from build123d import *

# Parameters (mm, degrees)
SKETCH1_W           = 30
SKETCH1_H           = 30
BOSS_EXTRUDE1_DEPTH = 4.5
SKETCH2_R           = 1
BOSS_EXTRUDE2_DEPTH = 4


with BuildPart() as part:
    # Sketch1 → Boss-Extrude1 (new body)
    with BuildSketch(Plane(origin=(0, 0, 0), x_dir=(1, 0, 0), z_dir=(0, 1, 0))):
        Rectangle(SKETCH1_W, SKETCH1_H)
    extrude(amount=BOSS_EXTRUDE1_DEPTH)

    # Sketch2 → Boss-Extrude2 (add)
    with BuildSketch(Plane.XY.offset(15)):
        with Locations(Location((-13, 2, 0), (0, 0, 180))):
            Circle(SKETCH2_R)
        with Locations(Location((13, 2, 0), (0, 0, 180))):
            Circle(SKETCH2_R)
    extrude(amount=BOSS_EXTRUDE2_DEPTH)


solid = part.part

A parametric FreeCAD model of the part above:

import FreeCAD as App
import Part
import Sketcher

V = App.Vector
Q = App.Units.Quantity

doc = App.newDocument("Part")
body = doc.addObject("PartDesign::Body", "Body")

# Sketch on XZ plane
sketch1 = body.newObject("Sketcher::SketchObject", "Sketch")
sketch1.AttachmentSupport = (doc.getObject("XZ_Plane"), [""])
sketch1.MapMode = "FlatFace"
sketch1.addGeometry(Part.LineSegment(V(-15, -15, 0), V(-15, 15, 0)), False)
sketch1.addGeometry(Part.LineSegment(V(-15, 15, 0), V(15, 15, 0)), False)
sketch1.addGeometry(Part.LineSegment(V(15, 15, 0), V(15, -15, 0)), False)
sketch1.addGeometry(Part.LineSegment(V(15, -15, 0), V(-15, -15, 0)), False)
sketch1.addConstraint(Sketcher.Constraint("Coincident", 0, 2, 1, 1))
sketch1.addConstraint(Sketcher.Constraint("Coincident", 1, 2, 2, 1))
sketch1.addConstraint(Sketcher.Constraint("Coincident", 2, 2, 3, 1))
sketch1.addConstraint(Sketcher.Constraint("Coincident", 3, 2, 0, 1))
sketch1.addConstraint(Sketcher.Constraint("Vertical", 0))
sketch1.addConstraint(Sketcher.Constraint("Horizontal", 1))
sketch1.addConstraint(Sketcher.Constraint("Vertical", 2))
sketch1.addConstraint(Sketcher.Constraint("Horizontal", 3))
sketch1.addConstraint(Sketcher.Constraint("Symmetric", 0, 2, 2, 2, -1, 1))
sketch1.addConstraint(Sketcher.Constraint("Equal", 3, 0))
sketch1.addConstraint(Sketcher.Constraint("DistanceX", 1, 1, 1, 2, Q("30 mm")))
pad1 = body.newObject("PartDesign::Pad", "Pad")
pad1.Profile = sketch1
pad1.Length = 4.5
pad1.Reversed = True

# Sketch on XY plane
sketch2 = body.newObject("Sketcher::SketchObject", "Sketch001")
sketch2.AttachmentSupport = (doc.getObject("XY_Plane"), [""])
sketch2.MapMode = "FlatFace"
sketch2.AttachmentOffset = App.Placement(V(0, 0, 15), App.Rotation())
sketch2.addGeometry(Part.Circle(V(-13, 2, 0), V(0, 0, 1), 1), False)
sketch2.addGeometry(Part.Circle(V(13, 2, 0), V(0, 0, 1), 1), False)
sketch2.addConstraint(Sketcher.Constraint("Equal", 0, 1))
sketch2.addConstraint(Sketcher.Constraint("Symmetric", 0, 3, 1, 3, -2))
sketch2.addConstraint(Sketcher.Constraint("Diameter", 0, Q("2 mm")))
sketch2.addConstraint(Sketcher.Constraint("DistanceX", 0, 3, -1, 1, Q("13 mm")))
sketch2.addConstraint(Sketcher.Constraint("DistanceY", -1, 1, 0, 3, Q("2 mm")))
pad2 = body.newObject("PartDesign::Pad", "Pad001")
pad2.Profile = sketch2
pad2.Length = 4

doc.recompute()
